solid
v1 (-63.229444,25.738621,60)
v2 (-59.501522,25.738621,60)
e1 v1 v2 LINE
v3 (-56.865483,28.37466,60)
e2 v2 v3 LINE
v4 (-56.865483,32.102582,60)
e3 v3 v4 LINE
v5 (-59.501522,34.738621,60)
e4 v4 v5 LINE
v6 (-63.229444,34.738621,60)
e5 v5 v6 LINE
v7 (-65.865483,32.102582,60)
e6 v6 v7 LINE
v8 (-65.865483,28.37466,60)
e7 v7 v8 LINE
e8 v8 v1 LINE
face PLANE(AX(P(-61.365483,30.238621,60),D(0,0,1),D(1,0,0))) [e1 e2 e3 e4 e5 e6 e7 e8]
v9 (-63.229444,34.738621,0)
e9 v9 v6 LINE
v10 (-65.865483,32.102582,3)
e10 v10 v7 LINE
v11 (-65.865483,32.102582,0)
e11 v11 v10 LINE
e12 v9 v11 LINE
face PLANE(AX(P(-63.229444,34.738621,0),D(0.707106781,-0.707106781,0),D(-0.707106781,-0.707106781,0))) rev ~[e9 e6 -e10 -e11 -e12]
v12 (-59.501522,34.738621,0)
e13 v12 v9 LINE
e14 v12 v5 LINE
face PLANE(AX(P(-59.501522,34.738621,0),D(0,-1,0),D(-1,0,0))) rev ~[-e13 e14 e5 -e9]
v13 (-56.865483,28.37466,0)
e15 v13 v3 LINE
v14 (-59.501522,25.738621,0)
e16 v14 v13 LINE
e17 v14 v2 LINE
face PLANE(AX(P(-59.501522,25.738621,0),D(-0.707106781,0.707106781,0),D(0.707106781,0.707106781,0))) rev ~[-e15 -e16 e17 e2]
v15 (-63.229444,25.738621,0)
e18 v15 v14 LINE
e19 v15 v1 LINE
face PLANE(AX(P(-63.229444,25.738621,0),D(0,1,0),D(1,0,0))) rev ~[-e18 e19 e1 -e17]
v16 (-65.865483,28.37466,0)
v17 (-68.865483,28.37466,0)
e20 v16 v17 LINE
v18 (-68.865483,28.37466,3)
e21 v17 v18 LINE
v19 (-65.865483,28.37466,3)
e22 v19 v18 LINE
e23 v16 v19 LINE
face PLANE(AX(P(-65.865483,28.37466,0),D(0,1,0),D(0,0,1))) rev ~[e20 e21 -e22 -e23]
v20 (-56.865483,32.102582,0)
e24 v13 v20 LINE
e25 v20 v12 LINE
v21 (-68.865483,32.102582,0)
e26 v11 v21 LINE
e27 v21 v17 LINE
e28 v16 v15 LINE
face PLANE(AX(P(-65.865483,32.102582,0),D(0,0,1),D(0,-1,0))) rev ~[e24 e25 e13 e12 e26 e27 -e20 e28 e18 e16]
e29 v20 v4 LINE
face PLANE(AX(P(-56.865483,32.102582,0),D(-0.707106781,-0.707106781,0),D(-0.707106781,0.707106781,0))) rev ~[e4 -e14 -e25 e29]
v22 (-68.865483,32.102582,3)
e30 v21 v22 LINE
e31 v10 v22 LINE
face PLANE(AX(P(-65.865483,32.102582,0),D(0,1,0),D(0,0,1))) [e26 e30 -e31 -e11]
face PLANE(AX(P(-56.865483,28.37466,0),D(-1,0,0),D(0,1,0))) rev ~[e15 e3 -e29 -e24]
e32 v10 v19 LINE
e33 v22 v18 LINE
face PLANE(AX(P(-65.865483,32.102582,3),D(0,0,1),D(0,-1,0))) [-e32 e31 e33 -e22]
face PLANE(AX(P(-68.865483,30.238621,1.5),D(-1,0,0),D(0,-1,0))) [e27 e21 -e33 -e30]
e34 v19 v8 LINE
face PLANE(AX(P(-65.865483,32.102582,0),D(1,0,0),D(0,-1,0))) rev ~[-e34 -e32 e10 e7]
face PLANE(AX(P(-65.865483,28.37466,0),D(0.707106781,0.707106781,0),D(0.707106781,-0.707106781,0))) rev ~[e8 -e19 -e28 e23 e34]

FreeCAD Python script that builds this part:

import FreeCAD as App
import Part
import Sketcher
from FreeCAD import Vector
Q = App.Units.Quantity

doc = App.newDocument("Part")
body = doc.addObject("PartDesign::Body", "Body")

sketch1 = doc.addObject("Sketcher::SketchObject", "Sketch")
body.addObject(sketch1)
sketch1.AttachmentSupport = (doc.XY_Plane, [""])
sketch1.MapMode = "FlatFace"
sketch1.addGeometry([
    Part.LineSegment(Vector(-59.501522, 25.738621, 0), Vector(-56.865483, 28.37466, 0)),
    Part.LineSegment(Vector(-56.865483, 28.37466, 0), Vector(-56.865483, 32.102582, 0)),
    Part.LineSegment(Vector(-56.865483, 32.102582, 0), Vector(-59.501522, 34.738621, 0)),
    Part.LineSegment(Vector(-59.501522, 34.738621, 0), Vector(-63.229444, 34.738621, 0)),
    Part.LineSegment(Vector(-63.229444, 34.738621, 0), Vector(-65.865483, 32.102582, 0)),
    Part.LineSegment(Vector(-65.865483, 32.102582, 0), Vector(-65.865483, 28.37466, 0)),
    Part.LineSegment(Vector(-65.865483, 28.37466, 0), Vector(-63.229444, 25.738621, 0)),
    Part.LineSegment(Vector(-63.229444, 25.738621, 0), Vector(-59.501522, 25.738621, 0)),
], False)
sketch1.addConstraint([
    Sketcher.Constraint("Coincident", 0, 2, 1, 1),
    Sketcher.Constraint("Coincident", 1, 2, 2, 1),
    Sketcher.Constraint("Coincident", 2, 2, 3, 1),
    Sketcher.Constraint("Coincident", 3, 2, 4, 1),
    Sketcher.Constraint("Coincident", 4, 2, 5, 1),
    Sketcher.Constraint("Coincident", 5, 2, 6, 1),
    Sketcher.Constraint("Coincident", 6, 2, 7, 1),
    Sketcher.Constraint("Coincident", 7, 2, 0, 1),
    Sketcher.Constraint("Vertical", 1),
    Sketcher.Constraint("Horizontal", 3),
    Sketcher.Constraint("Vertical", 5),
    Sketcher.Constraint("Horizontal", 7),
    Sketcher.Constraint("Perpendicular", 0, 2),
    Sketcher.Constraint("Perpendicular", 2, 4),
    Sketcher.Constraint("Perpendicular", 4, 6),
    Sketcher.Constraint("Horizontal", 1, 2, 4, 2),
    Sketcher.Constraint("Horizontal", 0, 2, 5, 2),
    Sketcher.Constraint("Vertical", 3, 2, 6, 2),
    Sketcher.Constraint("Vertical", 2, 2, 7, 2),
    Sketcher.Constraint("Equal", 7, 1),
    Sketcher.Constraint("DistanceX", 4, 2, 1, 2, Q("9 mm")),
    Sketcher.Constraint("DistanceX", 3, 2, 3, 1, Q("3.727922 mm")),
    Sketcher.Constraint("DistanceY", -1, 1, 0, 2, Q("28.37466 mm")),
    Sketcher.Constraint("DistanceX", 0, 2, -1, 1, Q("56.865483 mm")),
])
pad1 = doc.addObject("PartDesign::Pad", "Pad")
body.addObject(pad1)
pad1.Profile = sketch1
pad1.Length = 60

sketch2 = doc.addObject("Sketcher::SketchObject", "Sketch001")
body.addObject(sketch2)
sketch2.AttachmentSupport = (doc.YZ_Plane, [""])
sketch2.MapMode = "FlatFace"
sketch2.AttachmentOffset = App.Placement(Vector(0, 0, -65.865483), App.Rotation())
sketch2.addGeometry([
    Part.LineSegment(Vector(32.102582, 3, 0), Vector(32.102582, 0, 0)),
    Part.LineSegment(Vector(32.102582, 0, 0), Vector(28.37466, 0, 0)),
    Part.LineSegment(Vector(28.37466, 0, 0), Vector(28.37466, 3, 0)),
    Part.LineSegment(Vector(28.37466, 3, 0), Vector(32.102582, 3, 0)),
], False)
sketch2.addConstraint([
    Sketcher.Constraint("Coincident", 0, 2, 1, 1),
    Sketcher.Constraint("Coincident", 1, 2, 2, 1),
    Sketcher.Constraint("Coincident", 2, 2, 3, 1),
    Sketcher.Constraint("Coincident", 3, 2, 0, 1),
    Sketcher.Constraint("Vertical", 0),
    Sketcher.Constraint("Horizontal", 1),
    Sketcher.Constraint("Vertical", 2),
    Sketcher.Constraint("Horizontal", 3),
    Sketcher.Constraint("PointOnObject", 0, 2, -1),
    Sketcher.Constraint("DistanceY", 0, 2, 0, 1, Q("3 mm")),
    Sketcher.Constraint("DistanceX", 1, 2, 1, 1, Q("3.727922 mm")),
    Sketcher.Constraint("DistanceX", -1, 1, 0, 2, Q("32.102582 mm")),
])
pad2 = doc.addObject("PartDesign::Pad", "Pad001")
body.addObject(pad2)
pad2.Profile = sketch2
pad2.Length = 3
pad2.Reversed = True

doc.recompute()
